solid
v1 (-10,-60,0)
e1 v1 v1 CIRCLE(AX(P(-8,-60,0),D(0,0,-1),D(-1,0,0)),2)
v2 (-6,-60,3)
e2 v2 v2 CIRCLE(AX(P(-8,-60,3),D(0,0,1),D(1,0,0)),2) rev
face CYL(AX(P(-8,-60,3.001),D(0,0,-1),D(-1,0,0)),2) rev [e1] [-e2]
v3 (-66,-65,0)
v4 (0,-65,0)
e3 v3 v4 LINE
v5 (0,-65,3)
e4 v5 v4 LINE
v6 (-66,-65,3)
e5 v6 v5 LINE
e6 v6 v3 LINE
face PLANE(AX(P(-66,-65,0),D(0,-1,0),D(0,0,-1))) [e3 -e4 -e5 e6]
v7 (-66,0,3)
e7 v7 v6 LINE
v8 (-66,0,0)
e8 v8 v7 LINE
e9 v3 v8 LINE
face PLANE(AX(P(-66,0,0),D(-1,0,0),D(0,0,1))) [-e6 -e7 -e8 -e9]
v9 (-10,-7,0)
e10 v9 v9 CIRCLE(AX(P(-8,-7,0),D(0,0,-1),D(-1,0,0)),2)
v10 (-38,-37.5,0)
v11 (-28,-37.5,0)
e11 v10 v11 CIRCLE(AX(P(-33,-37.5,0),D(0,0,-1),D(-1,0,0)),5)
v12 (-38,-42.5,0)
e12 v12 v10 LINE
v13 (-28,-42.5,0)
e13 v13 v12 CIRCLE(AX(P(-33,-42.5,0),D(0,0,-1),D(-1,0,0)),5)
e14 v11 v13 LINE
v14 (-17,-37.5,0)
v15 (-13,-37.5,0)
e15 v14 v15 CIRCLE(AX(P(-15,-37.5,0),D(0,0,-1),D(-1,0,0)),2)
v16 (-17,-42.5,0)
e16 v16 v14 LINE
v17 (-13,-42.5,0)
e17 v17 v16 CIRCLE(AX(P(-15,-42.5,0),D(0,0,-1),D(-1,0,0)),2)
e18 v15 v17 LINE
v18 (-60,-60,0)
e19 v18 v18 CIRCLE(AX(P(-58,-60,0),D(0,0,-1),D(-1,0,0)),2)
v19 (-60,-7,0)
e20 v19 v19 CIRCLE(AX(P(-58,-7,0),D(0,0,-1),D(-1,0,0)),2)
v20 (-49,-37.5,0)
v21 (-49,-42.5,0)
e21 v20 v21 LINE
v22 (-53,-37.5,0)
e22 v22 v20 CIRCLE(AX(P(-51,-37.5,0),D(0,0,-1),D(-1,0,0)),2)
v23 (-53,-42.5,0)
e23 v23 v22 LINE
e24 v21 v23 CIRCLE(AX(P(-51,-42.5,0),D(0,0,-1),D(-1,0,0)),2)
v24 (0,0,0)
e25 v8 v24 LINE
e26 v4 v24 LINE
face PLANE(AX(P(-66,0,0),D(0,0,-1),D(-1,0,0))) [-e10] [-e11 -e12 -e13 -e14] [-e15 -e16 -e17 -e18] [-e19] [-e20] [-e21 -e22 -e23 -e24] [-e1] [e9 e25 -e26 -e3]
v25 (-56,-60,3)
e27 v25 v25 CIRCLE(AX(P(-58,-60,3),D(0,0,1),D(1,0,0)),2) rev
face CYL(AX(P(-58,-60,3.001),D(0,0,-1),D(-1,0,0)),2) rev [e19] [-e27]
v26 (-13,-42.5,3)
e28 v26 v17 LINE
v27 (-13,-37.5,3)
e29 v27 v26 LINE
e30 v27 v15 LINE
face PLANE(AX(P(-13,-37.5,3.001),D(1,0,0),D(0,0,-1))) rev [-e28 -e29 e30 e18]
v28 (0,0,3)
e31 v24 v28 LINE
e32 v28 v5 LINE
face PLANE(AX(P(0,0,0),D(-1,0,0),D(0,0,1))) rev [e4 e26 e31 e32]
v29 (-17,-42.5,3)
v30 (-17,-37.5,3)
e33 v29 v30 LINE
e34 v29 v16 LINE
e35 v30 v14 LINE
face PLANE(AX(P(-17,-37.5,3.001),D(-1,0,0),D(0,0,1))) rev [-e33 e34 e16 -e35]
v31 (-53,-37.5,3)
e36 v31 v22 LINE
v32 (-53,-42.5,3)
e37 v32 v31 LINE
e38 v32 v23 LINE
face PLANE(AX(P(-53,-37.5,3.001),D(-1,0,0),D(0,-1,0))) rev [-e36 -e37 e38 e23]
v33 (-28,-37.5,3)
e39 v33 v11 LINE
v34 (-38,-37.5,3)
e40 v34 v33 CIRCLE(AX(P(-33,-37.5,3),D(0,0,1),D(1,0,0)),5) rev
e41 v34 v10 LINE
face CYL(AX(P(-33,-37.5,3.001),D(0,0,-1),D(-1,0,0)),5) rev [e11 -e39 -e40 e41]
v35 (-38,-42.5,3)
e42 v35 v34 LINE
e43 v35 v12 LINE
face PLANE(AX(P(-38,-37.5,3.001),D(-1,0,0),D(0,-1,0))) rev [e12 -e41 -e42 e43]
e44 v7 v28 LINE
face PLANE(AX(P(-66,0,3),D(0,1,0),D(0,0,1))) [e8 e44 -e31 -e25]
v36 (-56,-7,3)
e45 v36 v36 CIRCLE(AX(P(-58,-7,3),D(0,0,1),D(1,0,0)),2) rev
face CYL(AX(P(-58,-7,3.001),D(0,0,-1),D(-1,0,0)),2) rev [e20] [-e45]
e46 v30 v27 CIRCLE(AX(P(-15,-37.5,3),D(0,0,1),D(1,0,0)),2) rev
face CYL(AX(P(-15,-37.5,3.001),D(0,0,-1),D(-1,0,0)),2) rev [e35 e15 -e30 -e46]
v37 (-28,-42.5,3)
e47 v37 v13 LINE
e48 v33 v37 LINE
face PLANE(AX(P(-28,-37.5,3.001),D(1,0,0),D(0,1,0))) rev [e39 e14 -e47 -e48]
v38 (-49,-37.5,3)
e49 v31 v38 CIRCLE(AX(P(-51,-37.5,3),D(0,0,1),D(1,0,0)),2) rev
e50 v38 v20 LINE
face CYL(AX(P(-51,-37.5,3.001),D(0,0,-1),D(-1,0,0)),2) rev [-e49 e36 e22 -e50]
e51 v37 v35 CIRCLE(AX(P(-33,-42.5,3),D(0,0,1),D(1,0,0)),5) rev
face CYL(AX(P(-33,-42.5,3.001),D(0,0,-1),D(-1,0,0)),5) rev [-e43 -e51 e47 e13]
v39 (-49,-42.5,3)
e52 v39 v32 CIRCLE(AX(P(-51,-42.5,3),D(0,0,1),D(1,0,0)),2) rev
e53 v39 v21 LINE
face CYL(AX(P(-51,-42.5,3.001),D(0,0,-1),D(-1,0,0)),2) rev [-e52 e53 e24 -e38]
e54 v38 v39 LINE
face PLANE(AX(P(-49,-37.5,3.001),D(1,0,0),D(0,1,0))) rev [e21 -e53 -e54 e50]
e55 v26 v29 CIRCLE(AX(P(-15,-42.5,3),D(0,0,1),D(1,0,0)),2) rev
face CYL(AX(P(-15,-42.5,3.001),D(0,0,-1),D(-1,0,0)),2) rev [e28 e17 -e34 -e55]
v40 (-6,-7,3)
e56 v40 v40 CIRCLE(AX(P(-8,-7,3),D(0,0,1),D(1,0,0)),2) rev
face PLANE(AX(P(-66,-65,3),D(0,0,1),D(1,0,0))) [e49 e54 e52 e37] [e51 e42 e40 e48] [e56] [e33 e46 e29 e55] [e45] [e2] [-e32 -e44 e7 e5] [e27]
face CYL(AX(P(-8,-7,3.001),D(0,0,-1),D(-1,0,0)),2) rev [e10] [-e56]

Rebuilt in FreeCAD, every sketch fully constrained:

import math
import FreeCAD as App
import Part
import Sketcher
from FreeCAD import Vector


def add_polygon(sketch, points):
    """Adds a closed chain of lines whose ends are joined by coincident constraints."""
    first, n = sketch.GeometryCount, len(points)
    for a, b in zip(points, points[1:] + points[:1]):
        sketch.addGeometry(Part.LineSegment(App.Vector(*a, 0), App.Vector(*b, 0)), False)
    for i in range(n):
        sketch.addConstraint(Sketcher.Constraint("Coincident", first + i, 2, first + (i + 1) % n, 1))

doc = App.newDocument("Part")
body = doc.addObject("PartDesign::Body", "Body")

sketch1 = doc.addObject("Sketcher::SketchObject", "Sketch")
body.addObject(sketch1)
sketch1.AttachmentSupport = (doc.YZ_Plane, [""])
sketch1.MapMode = "FlatFace"
add_polygon(sketch1, [(0, 3), (-65, 3), (-65, 0), (0, 0)])
sketch1.addConstraint([
    Sketcher.Constraint("Horizontal", 0),
    Sketcher.Constraint("Vertical", 1),
    Sketcher.Constraint("Horizontal", 2),
    Sketcher.Constraint("Vertical", 3),
    Sketcher.Constraint("Coincident", 2, 2, -1, 1),
    Sketcher.Constraint("DistanceX", 0, 2, 0, 1, 65.0),
    Sketcher.Constraint("DistanceY", 1, 2, 1, 1, 3.0),
])
pad1 = doc.addObject("PartDesign::Pad", "Pad")
body.addObject(pad1)
pad1.Profile = sketch1
pad1.Length = 66
pad1.Reversed = True

sketch2 = doc.addObject("Sketcher::SketchObject", "Sketch001")
body.addObject(sketch2)
sketch2.AttachmentSupport = (doc.XY_Plane, [""])
sketch2.MapMode = "FlatFace"
sketch2.addGeometry(Part.Circle(Vector(-8, -7, 0), Vector(0, 0, 1), 2), False)
sketch2.addConstraint([
    Sketcher.Constraint("Diameter", 0, 4.0),
    Sketcher.Constraint("DistanceX", 0, 3, -1, 1, 8.0),
    Sketcher.Constraint("DistanceY", 0, 3, -1, 1, 7.0),
])
pocket1 = doc.addObject("PartDesign::Pocket", "Pocket")
body.addObject(pocket1)
pocket1.Profile = sketch2
pocket1.Type = "UpToFirst"
pocket1.Reversed = True

sketch3 = doc.addObject("Sketcher::SketchObject", "Sketch002")
body.addObject(sketch3)
sketch3.AttachmentSupport = (doc.XY_Plane, [""])
sketch3.MapMode = "FlatFace"
sketch3.addGeometry(Part.Circle(Vector(-58, -7, 0), Vector(0, 0, 1), 2), False)
sketch3.addConstraint([
    Sketcher.Constraint("Diameter", 0, 4.0),
    Sketcher.Constraint("DistanceX", 0, 3, -1, 1, 58.0),
    Sketcher.Constraint("DistanceY", 0, 3, -1, 1, 7.0),
])
pocket2 = doc.addObject("PartDesign::Pocket", "Pocket001")
body.addObject(pocket2)
pocket2.Profile = sketch3
pocket2.Type = "UpToFirst"
pocket2.Reversed = True

sketch4 = doc.addObject("Sketcher::SketchObject", "Sketch003")
body.addObject(sketch4)
sketch4.AttachmentSupport = (doc.XY_Plane, [""])
sketch4.MapMode = "FlatFace"
sketch4.addGeometry(Part.Circle(Vector(-8, -60, 0), Vector(0, 0, 1), 2), False)
sketch4.addConstraint([
    Sketcher.Constraint("Diameter", 0, 4.0),
    Sketcher.Constraint("DistanceX", 0, 3, -1, 1, 8.0),
    Sketcher.Constraint("DistanceY", 0, 3, -1, 1, 60.0),
])
pocket3 = doc.addObject("PartDesign::Pocket", "Pocket002")
body.addObject(pocket3)
pocket3.Profile = sketch4
pocket3.Type = "UpToFirst"
pocket3.Reversed = True

sketch5 = doc.addObject("Sketcher::SketchObject", "Sketch004")
body.addObject(sketch5)
sketch5.AttachmentSupport = (doc.XY_Plane, [""])
sketch5.MapMode = "FlatFace"
sketch5.addGeometry(Part.Circle(Vector(-58, -60, 0), Vector(0, 0, 1), 2), False)
sketch5.addConstraint([
    Sketcher.Constraint("Diameter", 0, 4.0),
    Sketcher.Constraint("DistanceX", 0, 3, -1, 1, 58.0),
    Sketcher.Constraint("DistanceY", 0, 3, -1, 1, 60.0),
])
pocket4 = doc.addObject("PartDesign::Pocket", "Pocket003")
body.addObject(pocket4)
pocket4.Profile = sketch5
pocket4.Type = "UpToFirst"
pocket4.Reversed = True

sketch6 = doc.addObject("Sketcher::SketchObject", "Sketch005")
body.addObject(sketch6)
sketch6.AttachmentSupport = (doc.XY_Plane, [""])
sketch6.MapMode = "FlatFace"
sketch6.addGeometry([
    Part.LineSegment(Vector(-38, -42.5, 0), Vector(-38, -37.5, 0)),
    Part.ArcOfCircle(Part.Circle(Vector(-33, -37.5, 0), Vector(0, 0, 1), 5), math.radians(0), math.radians(180)),
    Part.LineSegment(Vector(-28, -37.5, 0), Vector(-28, -42.5, 0)),
    Part.ArcOfCircle(Part.Circle(Vector(-33, -42.5, 0), Vector(0, 0, 1), 5), math.radians(180), math.radians(360)),
], False)
sketch6.addConstraint([
    Sketcher.Constraint("Tangent", 0, 2, 1, 2),
    Sketcher.Constraint("Tangent", 1, 1, 2, 1),
    Sketcher.Constraint("Tangent", 2, 2, 3, 2),
    Sketcher.Constraint("Tangent", 3, 1, 0, 1),
    Sketcher.Constraint("Vertical", 0),
    Sketcher.Constraint("Vertical", 2),
    Sketcher.Constraint("Radius", 1, 5.0),
    Sketcher.Constraint("DistanceY", 0, 1, 0, 2, 5.0),
    Sketcher.Constraint("DistanceX", 1, 3, -1, 1, 33.0),
    Sketcher.Constraint("DistanceY", 1, 3, -1, 1, 37.5),
])
pocket5 = doc.addObject("PartDesign::Pocket", "Pocket004")
body.addObject(pocket5)
pocket5.Profile = sketch6
pocket5.Type = "UpToFirst"
pocket5.Reversed = True

sketch7 = doc.addObject("Sketcher::SketchObject", "Sketch006")
body.addObject(sketch7)
sketch7.AttachmentSupport = (doc.XY_Plane, [""])
sketch7.MapMode = "FlatFace"
sketch7.addGeometry([
    Part.LineSegment(Vector(-17, -42.5, 0), Vector(-17, -37.5, 0)),
    Part.ArcOfCircle(Part.Circle(Vector(-15, -37.5, 0), Vector(0, 0, 1), 2), math.radians(0), math.radians(180)),
    Part.LineSegment(Vector(-13, -37.5, 0), Vector(-13, -42.5, 0)),
    Part.ArcOfCircle(Part.Circle(Vector(-15, -42.5, 0), Vector(0, 0, 1), 2), math.radians(180), math.radians(360)),
], False)
sketch7.addConstraint([
    Sketcher.Constraint("Tangent", 0, 2, 1, 2),
    Sketcher.Constraint("Tangent", 1, 1, 2, 1),
    Sketcher.Constraint("Tangent", 2, 2, 3, 2),
    Sketcher.Constraint("Tangent", 3, 1, 0, 1),
    Sketcher.Constraint("Vertical", 0),
    Sketcher.Constraint("Vertical", 2),
    Sketcher.Constraint("Radius", 1, 2.0),
    Sketcher.Constraint("DistanceY", 0, 1, 0, 2, 5.0),
    Sketcher.Constraint("DistanceX", 1, 3, -1, 1, 15.0),
    Sketcher.Constraint("DistanceY", 1, 3, -1, 1, 37.5),
])
pocket6 = doc.addObject("PartDesign::Pocket", "Pocket005")
body.addObject(pocket6)
pocket6.Profile = sketch7
pocket6.Type = "UpToFirst"
pocket6.Reversed = True

sketch8 = doc.addObject("Sketcher::SketchObject", "Sketch007")
body.addObject(sketch8)
sketch8.AttachmentSupport = (doc.XY_Plane, [""])
sketch8.MapMode = "FlatFace"
sketch8.addGeometry([
    Part.LineSegment(Vector(-53, -42.5, 0), Vector(-53, -37.5, 0)),
    Part.ArcOfCircle(Part.Circle(Vector(-51, -37.5, 0), Vector(0, 0, 1), 2), math.radians(0), math.radians(180)),
    Part.LineSegment(Vector(-49, -37.5, 0), Vector(-49, -42.5, 0)),
    Part.ArcOfCircle(Part.Circle(Vector(-51, -42.5, 0), Vector(0, 0, 1), 2), math.radians(180), math.radians(360)),
], False)
sketch8.addConstraint([
    Sketcher.Constraint("Tangent", 0, 2, 1, 2),
    Sketcher.Constraint("Tangent", 1, 1, 2, 1),
    Sketcher.Constraint("Tangent", 2, 2, 3, 2),
    Sketcher.Constraint("Tangent", 3, 1, 0, 1),
    Sketcher.Constraint("Vertical", 0),
    Sketcher.Constraint("Vertical", 2),
    Sketcher.Constraint("Radius", 1, 2.0),
    Sketcher.Constraint("DistanceY", 0, 1, 0, 2, 5.0),
    Sketcher.Constraint("DistanceX", 1, 3, -1, 1, 51.0),
    Sketcher.Constraint("DistanceY", 1, 3, -1, 1, 37.5),
])
pocket7 = doc.addObject("PartDesign::Pocket", "Pocket006")
body.addObject(pocket7)
pocket7.Profile = sketch8
pocket7.Type = "UpToFirst"
pocket7.Reversed = True

doc.recompute()
